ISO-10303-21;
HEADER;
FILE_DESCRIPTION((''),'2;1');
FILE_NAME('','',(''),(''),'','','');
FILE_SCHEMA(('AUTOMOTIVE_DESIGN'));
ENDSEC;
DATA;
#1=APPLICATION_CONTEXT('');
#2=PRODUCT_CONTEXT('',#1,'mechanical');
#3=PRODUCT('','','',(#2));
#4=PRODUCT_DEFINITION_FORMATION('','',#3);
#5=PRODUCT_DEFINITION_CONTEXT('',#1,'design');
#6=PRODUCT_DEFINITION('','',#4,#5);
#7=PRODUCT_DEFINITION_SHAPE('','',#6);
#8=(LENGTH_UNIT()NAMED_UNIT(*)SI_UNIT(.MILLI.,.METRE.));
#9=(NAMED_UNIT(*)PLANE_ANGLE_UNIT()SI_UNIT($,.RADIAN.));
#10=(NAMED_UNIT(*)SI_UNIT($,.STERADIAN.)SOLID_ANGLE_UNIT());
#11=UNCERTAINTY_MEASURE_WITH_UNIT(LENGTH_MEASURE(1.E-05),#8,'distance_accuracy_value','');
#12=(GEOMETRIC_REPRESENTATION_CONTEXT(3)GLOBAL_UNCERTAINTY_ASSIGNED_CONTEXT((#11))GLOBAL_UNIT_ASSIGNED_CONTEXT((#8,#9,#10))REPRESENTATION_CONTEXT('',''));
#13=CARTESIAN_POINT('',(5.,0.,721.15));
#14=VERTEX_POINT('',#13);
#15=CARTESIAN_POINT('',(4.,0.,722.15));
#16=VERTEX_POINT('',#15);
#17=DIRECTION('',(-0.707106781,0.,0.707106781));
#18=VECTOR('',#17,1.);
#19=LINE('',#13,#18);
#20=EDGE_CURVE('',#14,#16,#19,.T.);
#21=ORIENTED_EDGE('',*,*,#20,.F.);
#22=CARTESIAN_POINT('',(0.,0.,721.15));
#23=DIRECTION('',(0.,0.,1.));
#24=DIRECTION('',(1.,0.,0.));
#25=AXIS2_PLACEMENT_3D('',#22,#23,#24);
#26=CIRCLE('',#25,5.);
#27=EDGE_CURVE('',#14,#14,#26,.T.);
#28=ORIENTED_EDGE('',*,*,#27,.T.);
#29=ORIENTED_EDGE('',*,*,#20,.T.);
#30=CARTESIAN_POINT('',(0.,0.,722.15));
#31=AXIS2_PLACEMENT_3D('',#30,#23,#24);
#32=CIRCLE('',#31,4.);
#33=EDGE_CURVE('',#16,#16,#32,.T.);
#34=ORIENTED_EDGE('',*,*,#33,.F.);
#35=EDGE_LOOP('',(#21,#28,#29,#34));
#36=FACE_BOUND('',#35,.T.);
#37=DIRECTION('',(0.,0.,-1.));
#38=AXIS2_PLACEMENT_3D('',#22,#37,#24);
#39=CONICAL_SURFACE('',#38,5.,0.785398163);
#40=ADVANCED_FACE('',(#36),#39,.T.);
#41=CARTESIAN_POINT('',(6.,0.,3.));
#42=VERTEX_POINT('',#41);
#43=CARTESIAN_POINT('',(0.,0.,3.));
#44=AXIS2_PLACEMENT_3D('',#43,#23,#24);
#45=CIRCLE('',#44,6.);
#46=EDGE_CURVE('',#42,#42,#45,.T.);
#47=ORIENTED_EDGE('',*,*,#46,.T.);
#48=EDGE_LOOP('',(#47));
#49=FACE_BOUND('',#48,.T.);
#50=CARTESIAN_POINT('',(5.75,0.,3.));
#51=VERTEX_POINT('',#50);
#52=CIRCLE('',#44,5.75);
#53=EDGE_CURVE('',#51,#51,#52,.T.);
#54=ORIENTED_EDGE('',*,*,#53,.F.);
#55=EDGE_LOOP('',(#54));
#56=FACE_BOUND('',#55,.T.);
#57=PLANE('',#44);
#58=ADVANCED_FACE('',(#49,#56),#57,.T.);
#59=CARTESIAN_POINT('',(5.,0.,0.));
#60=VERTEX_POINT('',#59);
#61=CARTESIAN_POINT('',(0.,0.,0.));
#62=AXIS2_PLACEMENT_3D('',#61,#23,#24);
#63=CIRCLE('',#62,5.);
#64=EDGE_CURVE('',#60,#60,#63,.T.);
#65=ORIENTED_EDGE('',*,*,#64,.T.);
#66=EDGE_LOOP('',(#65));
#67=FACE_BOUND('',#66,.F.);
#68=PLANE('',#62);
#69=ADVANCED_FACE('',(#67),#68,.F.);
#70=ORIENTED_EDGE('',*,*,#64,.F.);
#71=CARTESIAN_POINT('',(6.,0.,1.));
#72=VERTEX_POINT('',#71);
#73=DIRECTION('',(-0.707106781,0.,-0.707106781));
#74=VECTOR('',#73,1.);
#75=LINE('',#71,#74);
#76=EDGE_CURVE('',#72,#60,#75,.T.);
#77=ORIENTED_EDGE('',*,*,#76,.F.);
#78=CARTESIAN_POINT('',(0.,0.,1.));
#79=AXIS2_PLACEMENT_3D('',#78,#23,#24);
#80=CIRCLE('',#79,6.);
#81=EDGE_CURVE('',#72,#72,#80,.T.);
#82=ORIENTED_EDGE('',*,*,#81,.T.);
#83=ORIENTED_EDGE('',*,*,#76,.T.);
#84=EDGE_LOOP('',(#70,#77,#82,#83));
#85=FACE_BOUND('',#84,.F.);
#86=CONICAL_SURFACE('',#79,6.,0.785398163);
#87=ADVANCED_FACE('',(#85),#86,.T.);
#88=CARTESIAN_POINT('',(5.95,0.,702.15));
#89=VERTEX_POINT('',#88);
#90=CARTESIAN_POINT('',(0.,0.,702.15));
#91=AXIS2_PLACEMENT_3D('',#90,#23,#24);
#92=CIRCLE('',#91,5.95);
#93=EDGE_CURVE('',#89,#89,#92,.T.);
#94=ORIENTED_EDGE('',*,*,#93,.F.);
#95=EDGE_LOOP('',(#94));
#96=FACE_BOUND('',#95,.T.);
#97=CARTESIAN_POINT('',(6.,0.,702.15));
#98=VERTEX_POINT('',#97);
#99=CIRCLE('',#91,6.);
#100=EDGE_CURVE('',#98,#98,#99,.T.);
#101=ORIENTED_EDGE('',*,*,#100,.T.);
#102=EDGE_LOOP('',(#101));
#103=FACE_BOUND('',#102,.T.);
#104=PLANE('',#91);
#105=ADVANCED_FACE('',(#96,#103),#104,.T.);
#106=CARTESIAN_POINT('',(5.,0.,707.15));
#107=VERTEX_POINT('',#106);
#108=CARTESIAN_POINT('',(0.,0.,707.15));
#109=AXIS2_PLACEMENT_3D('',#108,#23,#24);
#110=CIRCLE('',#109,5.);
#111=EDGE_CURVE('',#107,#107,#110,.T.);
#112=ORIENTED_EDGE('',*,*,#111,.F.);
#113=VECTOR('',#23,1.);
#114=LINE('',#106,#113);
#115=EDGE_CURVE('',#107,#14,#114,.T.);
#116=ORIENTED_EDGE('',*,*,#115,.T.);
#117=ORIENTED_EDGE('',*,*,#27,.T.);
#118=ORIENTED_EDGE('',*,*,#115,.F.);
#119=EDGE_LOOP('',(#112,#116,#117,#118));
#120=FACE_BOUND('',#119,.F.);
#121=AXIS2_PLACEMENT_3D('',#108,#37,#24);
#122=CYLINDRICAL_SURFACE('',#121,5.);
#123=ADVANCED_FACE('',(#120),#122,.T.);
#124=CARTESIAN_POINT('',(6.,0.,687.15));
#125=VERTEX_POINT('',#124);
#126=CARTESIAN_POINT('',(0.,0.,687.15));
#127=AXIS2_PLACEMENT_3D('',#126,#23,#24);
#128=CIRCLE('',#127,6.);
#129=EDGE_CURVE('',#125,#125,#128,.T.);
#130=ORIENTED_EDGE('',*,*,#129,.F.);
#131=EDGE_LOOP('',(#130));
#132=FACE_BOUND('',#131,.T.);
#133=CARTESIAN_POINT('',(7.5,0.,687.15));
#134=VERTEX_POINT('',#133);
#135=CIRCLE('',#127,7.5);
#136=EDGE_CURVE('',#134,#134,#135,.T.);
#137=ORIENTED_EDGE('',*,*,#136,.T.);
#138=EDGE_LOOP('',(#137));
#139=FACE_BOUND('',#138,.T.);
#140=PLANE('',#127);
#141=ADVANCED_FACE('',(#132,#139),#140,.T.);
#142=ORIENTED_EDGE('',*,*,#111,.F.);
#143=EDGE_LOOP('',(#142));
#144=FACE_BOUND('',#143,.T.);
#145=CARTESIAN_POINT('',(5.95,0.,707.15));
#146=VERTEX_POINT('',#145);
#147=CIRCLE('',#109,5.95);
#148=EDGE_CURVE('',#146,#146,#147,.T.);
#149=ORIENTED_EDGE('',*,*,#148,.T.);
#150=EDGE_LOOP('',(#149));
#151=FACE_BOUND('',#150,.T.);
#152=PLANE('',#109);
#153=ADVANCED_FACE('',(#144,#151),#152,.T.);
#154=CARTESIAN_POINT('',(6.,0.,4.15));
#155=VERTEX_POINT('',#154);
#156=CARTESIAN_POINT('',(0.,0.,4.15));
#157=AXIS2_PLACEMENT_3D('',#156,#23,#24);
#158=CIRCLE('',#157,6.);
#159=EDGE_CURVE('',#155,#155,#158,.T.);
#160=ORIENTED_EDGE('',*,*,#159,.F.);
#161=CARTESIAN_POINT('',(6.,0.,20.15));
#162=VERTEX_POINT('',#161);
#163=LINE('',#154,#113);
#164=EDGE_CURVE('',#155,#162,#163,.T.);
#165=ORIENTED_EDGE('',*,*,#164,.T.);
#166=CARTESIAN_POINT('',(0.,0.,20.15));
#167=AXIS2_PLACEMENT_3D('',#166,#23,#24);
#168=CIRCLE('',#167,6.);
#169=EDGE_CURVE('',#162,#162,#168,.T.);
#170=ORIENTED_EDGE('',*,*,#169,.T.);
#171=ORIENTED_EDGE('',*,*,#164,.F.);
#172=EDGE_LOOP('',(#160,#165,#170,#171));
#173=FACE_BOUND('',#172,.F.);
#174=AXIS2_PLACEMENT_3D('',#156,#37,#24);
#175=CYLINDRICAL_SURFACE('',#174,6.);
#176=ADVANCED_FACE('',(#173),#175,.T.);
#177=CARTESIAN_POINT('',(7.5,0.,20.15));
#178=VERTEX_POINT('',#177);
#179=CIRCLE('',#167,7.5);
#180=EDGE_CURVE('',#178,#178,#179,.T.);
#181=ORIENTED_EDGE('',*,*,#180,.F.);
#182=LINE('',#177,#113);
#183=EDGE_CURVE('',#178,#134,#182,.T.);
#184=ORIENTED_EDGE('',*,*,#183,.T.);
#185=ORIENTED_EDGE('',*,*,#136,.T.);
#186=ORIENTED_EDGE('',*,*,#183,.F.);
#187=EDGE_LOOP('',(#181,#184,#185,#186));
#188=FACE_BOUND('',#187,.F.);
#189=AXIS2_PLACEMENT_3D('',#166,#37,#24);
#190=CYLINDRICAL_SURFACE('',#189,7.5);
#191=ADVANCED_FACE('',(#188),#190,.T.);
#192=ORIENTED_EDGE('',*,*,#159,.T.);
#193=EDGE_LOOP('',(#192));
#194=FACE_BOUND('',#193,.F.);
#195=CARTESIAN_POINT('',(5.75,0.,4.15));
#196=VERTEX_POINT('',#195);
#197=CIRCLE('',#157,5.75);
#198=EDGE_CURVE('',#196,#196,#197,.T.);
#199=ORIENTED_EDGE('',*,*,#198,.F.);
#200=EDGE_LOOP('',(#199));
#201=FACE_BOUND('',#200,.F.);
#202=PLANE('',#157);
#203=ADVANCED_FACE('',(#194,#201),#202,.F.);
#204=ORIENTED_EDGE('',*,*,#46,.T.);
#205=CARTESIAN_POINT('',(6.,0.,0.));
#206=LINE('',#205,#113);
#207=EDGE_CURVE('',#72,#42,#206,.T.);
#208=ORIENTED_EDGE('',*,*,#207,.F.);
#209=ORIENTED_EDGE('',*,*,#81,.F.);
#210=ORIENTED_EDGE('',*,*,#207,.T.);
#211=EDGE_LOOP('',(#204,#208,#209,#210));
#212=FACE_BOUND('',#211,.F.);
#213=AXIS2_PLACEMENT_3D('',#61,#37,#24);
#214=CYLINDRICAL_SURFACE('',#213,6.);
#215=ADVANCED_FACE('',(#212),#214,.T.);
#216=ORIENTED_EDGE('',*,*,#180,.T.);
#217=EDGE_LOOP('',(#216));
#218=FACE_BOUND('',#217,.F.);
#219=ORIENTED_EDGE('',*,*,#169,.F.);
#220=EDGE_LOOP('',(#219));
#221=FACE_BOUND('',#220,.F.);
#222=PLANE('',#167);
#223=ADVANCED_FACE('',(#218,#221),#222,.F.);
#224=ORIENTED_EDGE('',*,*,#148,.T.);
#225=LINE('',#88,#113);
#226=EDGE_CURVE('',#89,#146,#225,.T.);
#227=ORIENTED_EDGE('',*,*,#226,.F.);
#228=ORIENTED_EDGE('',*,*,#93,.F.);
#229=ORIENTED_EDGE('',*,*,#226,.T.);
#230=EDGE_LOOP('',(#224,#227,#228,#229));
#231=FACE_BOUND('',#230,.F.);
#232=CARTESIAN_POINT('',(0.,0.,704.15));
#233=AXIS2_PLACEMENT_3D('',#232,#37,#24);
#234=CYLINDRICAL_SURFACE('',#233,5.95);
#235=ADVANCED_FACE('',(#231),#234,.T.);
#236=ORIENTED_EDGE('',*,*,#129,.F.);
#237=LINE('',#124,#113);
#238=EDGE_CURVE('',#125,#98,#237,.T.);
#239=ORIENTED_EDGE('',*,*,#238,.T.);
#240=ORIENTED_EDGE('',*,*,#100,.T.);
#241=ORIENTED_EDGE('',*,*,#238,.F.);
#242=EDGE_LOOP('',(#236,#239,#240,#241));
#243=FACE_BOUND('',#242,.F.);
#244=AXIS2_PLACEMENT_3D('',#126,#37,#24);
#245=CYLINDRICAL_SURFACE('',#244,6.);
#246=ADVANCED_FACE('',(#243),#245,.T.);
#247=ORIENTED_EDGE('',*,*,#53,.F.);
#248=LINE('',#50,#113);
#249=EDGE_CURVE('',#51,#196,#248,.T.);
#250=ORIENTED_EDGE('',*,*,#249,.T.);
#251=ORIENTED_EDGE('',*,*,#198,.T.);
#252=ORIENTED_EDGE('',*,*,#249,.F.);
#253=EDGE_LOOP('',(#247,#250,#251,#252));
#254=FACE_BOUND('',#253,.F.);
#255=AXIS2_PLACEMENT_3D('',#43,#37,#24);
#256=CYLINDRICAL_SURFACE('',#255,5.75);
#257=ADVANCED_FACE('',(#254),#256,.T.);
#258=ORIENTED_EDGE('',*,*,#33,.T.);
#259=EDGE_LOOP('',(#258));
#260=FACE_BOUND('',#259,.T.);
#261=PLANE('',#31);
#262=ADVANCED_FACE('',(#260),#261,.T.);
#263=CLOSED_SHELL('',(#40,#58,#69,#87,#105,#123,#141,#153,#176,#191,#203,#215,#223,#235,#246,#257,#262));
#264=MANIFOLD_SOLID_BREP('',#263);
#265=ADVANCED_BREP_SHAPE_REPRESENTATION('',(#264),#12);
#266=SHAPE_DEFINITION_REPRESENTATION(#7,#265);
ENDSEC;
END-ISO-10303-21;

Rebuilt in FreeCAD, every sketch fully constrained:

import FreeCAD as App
import Part
import Sketcher
Q = App.Units.Quantity


def edges_at(feature, points):
    """Names of the edges that pass closest to the given points."""
    edges = feature.Shape.Edges
    near = lambda p: min(range(len(edges)), key=lambda i: edges[i].distToShape(Part.Vertex(*p))[0])
    return sorted({f"Edge{near(p) + 1}" for p in points})

doc = App.newDocument("Part")
body = doc.addObject("PartDesign::Body", "Body")

# Sketch on XY plane
sketch1 = body.newObject("Sketcher::SketchObject", "Sketch")
sketch1.AttachmentSupport = (doc.getObject("XY_Plane"), [""])
sketch1.MapMode = "FlatFace"
sketch1.addGeometry(Part.Circle(App.Vector(0, 0, 0), App.Vector(0, 0, 1), 6), False)
sketch1.addConstraint(Sketcher.Constraint("Coincident", 0, 3, -1, 1))
sketch1.addConstraint(Sketcher.Constraint("Diameter", 0, Q("12 mm")))
pad1 = body.newObject("PartDesign::Pad", "Pad")
pad1.Profile = sketch1
pad1.Length = 3

# Sketch on XY plane
sketch2 = body.newObject("Sketcher::SketchObject", "Sketch001")
sketch2.AttachmentSupport = (doc.getObject("XY_Plane"), [""])
sketch2.MapMode = "FlatFace"
sketch2.AttachmentOffset = App.Placement(App.Vector(0, 0, 3), App.Rotation())
sketch2.addGeometry(Part.Circle(App.Vector(0, 0, 0), App.Vector(0, 0, 1), 5.75), False)
sketch2.addConstraint(Sketcher.Constraint("Coincident", 0, 3, -1, 1))
sketch2.addConstraint(Sketcher.Constraint("Diameter", 0, Q("11.5 mm")))
pad2 = body.newObject("PartDesign::Pad", "Pad001")
pad2.Profile = sketch2
pad2.Length = 1.15

# Sketch on XY plane
sketch3 = body.newObject("Sketcher::SketchObject", "Sketch002")
sketch3.AttachmentSupport = (doc.getObject("XY_Plane"), [""])
sketch3.MapMode = "FlatFace"
sketch3.AttachmentOffset = App.Placement(App.Vector(0, 0, 4.15), App.Rotation())
sketch3.addGeometry(Part.Circle(App.Vector(0, 0, 0), App.Vector(0, 0, 1), 6), False)
sketch3.addConstraint(Sketcher.Constraint("Coincident", 0, 3, -1, 1))
sketch3.addConstraint(Sketcher.Constraint("Diameter", 0, Q("12 mm")))
pad3 = body.newObject("PartDesign::Pad", "Pad002")
pad3.Profile = sketch3
pad3.Length = 16

# Sketch on XY plane
sketch4 = body.newObject("Sketcher::SketchObject", "Sketch003")
sketch4.AttachmentSupport = (doc.getObject("XY_Plane"), [""])
sketch4.MapMode = "FlatFace"
sketch4.AttachmentOffset = App.Placement(App.Vector(0, 0, 20.15), App.Rotation())
sketch4.addGeometry(Part.Circle(App.Vector(0, 0, 0), App.Vector(0, 0, 1), 7.5), False)
sketch4.addConstraint(Sketcher.Constraint("Coincident", 0, 3, -1, 1))
sketch4.addConstraint(Sketcher.Constraint("Diameter", 0, Q("15 mm")))
pad4 = body.newObject("PartDesign::Pad", "Pad003")
pad4.Profile = sketch4
pad4.Length = 667

# Sketch on XY plane
sketch5 = body.newObject("Sketcher::SketchObject", "Sketch004")
sketch5.AttachmentSupport = (doc.getObject("XY_Plane"), [""])
sketch5.MapMode = "FlatFace"
sketch5.AttachmentOffset = App.Placement(App.Vector(0, 0, 687.15), App.Rotation())
sketch5.addGeometry(Part.Circle(App.Vector(0, 0, 0), App.Vector(0, 0, 1), 6), False)
sketch5.addConstraint(Sketcher.Constraint("Coincident", 0, 3, -1, 1))
sketch5.addConstraint(Sketcher.Constraint("Diameter", 0, Q("12 mm")))
pad5 = body.newObject("PartDesign::Pad", "Pad004")
pad5.Profile = sketch5
pad5.Length = 15

# Sketch on XY plane
sketch6 = body.newObject("Sketcher::SketchObject", "Sketch005")
sketch6.AttachmentSupport = (doc.getObject("XY_Plane"), [""])
sketch6.MapMode = "FlatFace"
sketch6.AttachmentOffset = App.Placement(App.Vector(0, 0, 702.15), App.Rotation())
sketch6.addGeometry(Part.Circle(App.Vector(0, 0, 0), App.Vector(0, 0, 1), 5.95), False)
sketch6.addConstraint(Sketcher.Constraint("Coincident", 0, 3, -1, 1))
sketch6.addConstraint(Sketcher.Constraint("Diameter", 0, Q("11.9 mm")))
pad6 = body.newObject("PartDesign::Pad", "Pad005")
pad6.Profile = sketch6
pad6.Length = 2

# Sketch on XY plane
sketch7 = body.newObject("Sketcher::SketchObject", "Sketch006")
sketch7.AttachmentSupport = (doc.getObject("XY_Plane"), [""])
sketch7.MapMode = "FlatFace"
sketch7.AttachmentOffset = App.Placement(App.Vector(0, 0, 704.15), App.Rotation())
sketch7.addGeometry(Part.Circle(App.Vector(0, 0, 0), App.Vector(0, 0, 1), 5.95), False)
sketch7.addConstraint(Sketcher.Constraint("Coincident", 0, 3, -1, 1))
sketch7.addConstraint(Sketcher.Constraint("Diameter", 0, Q("11.9 mm")))
pad7 = body.newObject("PartDesign::Pad", "Pad006")
pad7.Profile = sketch7
pad7.Length = 3

# Sketch on XY plane
sketch8 = body.newObject("Sketcher::SketchObject", "Sketch007")
sketch8.AttachmentSupport = (doc.getObject("XY_Plane"), [""])
sketch8.MapMode = "FlatFace"
sketch8.AttachmentOffset = App.Placement(App.Vector(0, 0, 707.15), App.Rotation())
sketch8.addGeometry(Part.Circle(App.Vector(0, 0, 0), App.Vector(0, 0, 1), 5), False)
sketch8.addConstraint(Sketcher.Constraint("Coincident", 0, 3, -1, 1))
sketch8.addConstraint(Sketcher.Constraint("Diameter", 0, Q("10 mm")))
pad8 = body.newObject("PartDesign::Pad", "Pad007")
pad8.Profile = sketch8
pad8.Length = 15
doc.recompute()

chamfer = body.newObject("PartDesign::Chamfer", "Chamfer")
chamfer.Base = (pad8, edges_at(pad8, [(-5, 0, 722.15), (-6, 0, 0)]))
chamfer.Size = 1

doc.recompute()
